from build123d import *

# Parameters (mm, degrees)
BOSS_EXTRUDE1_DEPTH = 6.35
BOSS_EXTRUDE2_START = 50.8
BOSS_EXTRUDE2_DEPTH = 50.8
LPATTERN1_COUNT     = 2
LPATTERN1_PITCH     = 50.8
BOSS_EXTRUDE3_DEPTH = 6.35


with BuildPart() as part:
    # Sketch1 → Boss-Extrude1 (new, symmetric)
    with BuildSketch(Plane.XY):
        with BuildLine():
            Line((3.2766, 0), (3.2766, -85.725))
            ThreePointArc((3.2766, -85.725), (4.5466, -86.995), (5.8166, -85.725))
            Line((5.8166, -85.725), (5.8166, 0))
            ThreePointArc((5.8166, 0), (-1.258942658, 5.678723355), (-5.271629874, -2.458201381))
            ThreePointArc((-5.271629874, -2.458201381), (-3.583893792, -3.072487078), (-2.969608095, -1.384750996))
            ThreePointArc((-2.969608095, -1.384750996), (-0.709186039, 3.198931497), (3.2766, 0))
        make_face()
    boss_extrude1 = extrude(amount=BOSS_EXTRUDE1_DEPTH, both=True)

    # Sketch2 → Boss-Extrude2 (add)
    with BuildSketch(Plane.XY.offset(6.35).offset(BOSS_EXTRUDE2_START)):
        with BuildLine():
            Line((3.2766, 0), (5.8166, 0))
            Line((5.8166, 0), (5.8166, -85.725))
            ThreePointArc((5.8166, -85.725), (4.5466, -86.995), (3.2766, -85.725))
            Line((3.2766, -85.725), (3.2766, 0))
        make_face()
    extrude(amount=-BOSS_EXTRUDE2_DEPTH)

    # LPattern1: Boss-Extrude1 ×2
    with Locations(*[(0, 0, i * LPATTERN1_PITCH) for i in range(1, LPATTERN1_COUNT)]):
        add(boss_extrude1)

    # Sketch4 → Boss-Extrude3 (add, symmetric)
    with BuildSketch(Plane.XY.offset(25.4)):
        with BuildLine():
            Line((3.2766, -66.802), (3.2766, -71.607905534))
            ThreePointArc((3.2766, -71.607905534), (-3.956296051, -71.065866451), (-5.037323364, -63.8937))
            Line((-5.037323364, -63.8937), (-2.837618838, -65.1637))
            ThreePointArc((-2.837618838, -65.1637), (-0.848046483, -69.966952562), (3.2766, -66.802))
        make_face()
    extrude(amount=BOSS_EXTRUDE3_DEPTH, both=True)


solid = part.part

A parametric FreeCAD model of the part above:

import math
import FreeCAD as App
import Part
import Sketcher
from FreeCAD import Vector
Q = App.Units.Quantity

doc = App.newDocument("Part")
body = doc.addObject("PartDesign::Body", "Body")

# Sketch on XY plane
sketch1 = doc.addObject("Sketcher::SketchObject", "Sketch")
body.addObject(sketch1)
sketch1.AttachmentSupport = (doc.XY_Plane, [""])
sketch1.MapMode = "FlatFace"
sketch1.addGeometry([
    Part.LineSegment(Vector(3.3, 0, 0), Vector(3.3, -85.7, 0)),  # 0
    Part.ArcOfCircle(Part.Circle(Vector(4.5, -85.7, 0), Vector(0, 0, 1), 1.3), math.radians(180), math.radians(360)),  # 1
    Part.LineSegment(Vector(5.8, -85.7, 0), Vector(5.8, 0, 0)),  # 2
    Part.ArcOfCircle(Part.Circle(Vector(0, 0, 0), Vector(0, 0, 1), 5.8), math.radians(0), math.radians(205)),  # 3
    Part.ArcOfCircle(Part.Circle(Vector(-4.1, -1.9, 0), Vector(0, 0, 1), 1.3), math.radians(-155), math.radians(25)),  # 4
    Part.ArcOfCircle(Part.Circle(Vector(0, 0, 0), Vector(0, 0, 1), 3.3), math.radians(0), math.radians(205)),  # 5
], False)
sketch1.addConstraint([
    Sketcher.Constraint("Tangent", 0, 2, 1, 1),
    Sketcher.Constraint("Tangent", 1, 2, 2, 1),
    Sketcher.Constraint("Tangent", 2, 2, 3, 1),
    Sketcher.Constraint("Tangent", 3, 2, 4, 1),
    Sketcher.Constraint("Tangent", 4, 2, 5, 2),
    Sketcher.Constraint("Tangent", 5, 1, 0, 1),
    Sketcher.Constraint("Vertical", 0),
    Sketcher.Constraint("Vertical", 2),
    Sketcher.Constraint("Coincident", 3, 3, -1, 1),
    Sketcher.Constraint("Coincident", 5, 3, -1, 1),
    Sketcher.Constraint("Radius", 1, Q("0.05 in")),
    Sketcher.Constraint("Radius", 3, Q("0.229 in")),
    Sketcher.Constraint("DistanceY", 0, 2, 0, 1, Q("3.375 in")),
    Sketcher.Constraint("DistanceY", 3, 2, -1, 1, 2.458201),
])
pad1 = doc.addObject("PartDesign::Pad", "Pad")
body.addObject(pad1)
pad1.Profile = sketch1
pad1.Length = Q("0.5 in")
pad1.Midplane = True

# Sketch on XY plane
sketch2 = doc.addObject("Sketcher::SketchObject", "Sketch001")
body.addObject(sketch2)
sketch2.AttachmentSupport = (doc.XY_Plane, [""])
sketch2.MapMode = "FlatFace"
sketch2.AttachmentOffset = App.Placement(Vector(0, 0, 2.25 * 25.4), App.Rotation())
sketch2.addGeometry([
    Part.LineSegment(Vector(5.8, 0, 0), Vector(3.3, 0, 0)),
    Part.LineSegment(Vector(3.3, 0, 0), Vector(3.3, -85.7, 0)),
    Part.ArcOfCircle(Part.Circle(Vector(4.5, -85.7, 0), Vector(0, 0, 1), 1.3), math.radians(180), math.radians(360)),
    Part.LineSegment(Vector(5.8, -85.7, 0), Vector(5.8, 0, 0)),
], False)
sketch2.addConstraint([
    Sketcher.Constraint("Coincident", 0, 2, 1, 1),
    Sketcher.Constraint("Tangent", 1, 2, 2, 1),
    Sketcher.Constraint("Tangent", 2, 2, 3, 1),
    Sketcher.Constraint("Coincident", 3, 2, 0, 1),
    Sketcher.Constraint("Horizontal", 0),
    Sketcher.Constraint("Vertical", 1),
    Sketcher.Constraint("Vertical", 3),
    Sketcher.Constraint("PointOnObject", 0, 2, -1),
    Sketcher.Constraint("Radius", 2, Q("0.05 in")),
    Sketcher.Constraint("DistanceY", 1, 2, 1, 1, Q("3.375 in")),
    Sketcher.Constraint("DistanceX", -1, 1, 2, 3, Q("0.179 in")),
])
pad2 = doc.addObject("PartDesign::Pad", "Pad001")
body.addObject(pad2)
pad2.Profile = sketch2
pad2.Length = Q("2 in")
pad2.Reversed = True
doc.recompute()

linearpattern = doc.addObject("PartDesign::LinearPattern", "LinearPattern")
body.addObject(linearpattern)
linearpattern.Originals = [pad1]
linearpattern.Direction = (doc.Z_Axis, [""])
linearpattern.Mode = "offset"
linearpattern.Offset = Q("2 in")
linearpattern.Occurrences = 2
body.Tip = linearpattern

# Sketch on XY plane
sketch3 = doc.addObject("Sketcher::SketchObject", "Sketch002")
body.addObject(sketch3)
sketch3.AttachmentSupport = (doc.XY_Plane, [""])
sketch3.MapMode = "FlatFace"
sketch3.AttachmentOffset = App.Placement(Vector(0, 0, 1 * 25.4), App.Rotation())
sketch3.addGeometry([
    Part.LineSegment(Vector(3.3, -71.6, 0), Vector(3.3, -66.8, 0)),
    Part.ArcOfCircle(Part.Circle(Vector(0, -66.8, 0), Vector(0, 0, 1), 3.3), math.radians(150), math.radians(360)),
    Part.LineSegment(Vector(-2.8, -65.2, 0), Vector(-5, -63.9, 0)),
    Part.ArcOfCircle(Part.Circle(Vector(0, -66.8, 0), Vector(0, 0, 1), 5.8), math.radians(150), math.radians(304)),
], False)
sketch3.addConstraint([
    Sketcher.Constraint("Tangent", 0, 2, 1, 2),
    Sketcher.Constraint("Coincident", 1, 1, 2, 1),
    Sketcher.Constraint("Coincident", 2, 2, 3, 1),
    Sketcher.Constraint("Coincident", 3, 2, 0, 1),
    Sketcher.Constraint("Vertical", 0),
    Sketcher.Constraint("Coincident", 3, 3, 1, 3),
    Sketcher.Constraint("PointOnObject", 1, 3, -2),
    Sketcher.Constraint("Angle", 2, Q("150 deg")),
    Sketcher.Constraint("Radius", 1, Q("0.129 in")),
    Sketcher.Constraint("Radius", 3, Q("0.229 in")),
    Sketcher.Constraint("DistanceY", 1, 3, -1, 1, Q("2.63 in")),
    Sketcher.Constraint("DistanceY", 1, 1, -1, 1, Q("2.5655 in")),
])
pad3 = doc.addObject("PartDesign::Pad", "Pad002")
body.addObject(pad3)
pad3.Profile = sketch3
pad3.Length = Q("0.5 in")
pad3.Midplane = True

doc.recompute()
